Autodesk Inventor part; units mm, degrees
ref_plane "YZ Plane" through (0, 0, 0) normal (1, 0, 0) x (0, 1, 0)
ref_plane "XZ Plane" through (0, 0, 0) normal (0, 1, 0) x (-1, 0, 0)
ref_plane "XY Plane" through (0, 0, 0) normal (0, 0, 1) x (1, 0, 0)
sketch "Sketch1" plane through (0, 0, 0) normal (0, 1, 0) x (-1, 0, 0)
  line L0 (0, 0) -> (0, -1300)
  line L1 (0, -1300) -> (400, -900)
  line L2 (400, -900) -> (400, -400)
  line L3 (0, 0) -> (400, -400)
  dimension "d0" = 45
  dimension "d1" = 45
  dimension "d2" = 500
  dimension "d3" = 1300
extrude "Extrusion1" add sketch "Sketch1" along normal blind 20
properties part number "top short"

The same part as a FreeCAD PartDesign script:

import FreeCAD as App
import Part
import Sketcher
from FreeCAD import Vector


def add_polygon(sketch, points):
    """Adds a closed chain of lines whose ends are joined by coincident constraints."""
    first, n = sketch.GeometryCount, len(points)
    for a, b in zip(points, points[1:] + points[:1]):
        sketch.addGeometry(Part.LineSegment(App.Vector(*a, 0), App.Vector(*b, 0)), False)
    for i in range(n):
        sketch.addConstraint(Sketcher.Constraint("Coincident", first + i, 2, first + (i + 1) % n, 1))

doc = App.newDocument("Part")
body = doc.addObject("PartDesign::Body", "Body")

# Sketch on XZ plane
sketch1 = body.newObject("Sketcher::SketchObject", "Sketch")
sketch1.AttachmentSupport = (doc.getObject("XZ_Plane"), [""])
sketch1.MapMode = "FlatFace"
add_polygon(sketch1, [(-400, -400), (0, 0), (0, -1300), (-400, -900)])  # lines 0-3
sketch1.addConstraint(Sketcher.Constraint("Vertical", 1))
sketch1.addConstraint(Sketcher.Constraint("Vertical", 3))
sketch1.addConstraint(Sketcher.Constraint("Coincident", 0, 2, -1, 1))
sketch1.addConstraint(Sketcher.Constraint("Perpendicular", 0, 2))
sketch1.addConstraint(Sketcher.Constraint("Equal", 0, 2))
sketch1.addConstraint(Sketcher.Constraint("DistanceY", 1, 2, 1, 1, 1300.0))
sketch1.addConstraint(Sketcher.Constraint("DistanceY", 3, 1, 3, 2, 500.0))
pad1 = body.newObject("PartDesign::Pad", "Pad")
pad1.Profile = sketch1
pad1.Length = 20
pad1.Reversed = True

doc.recompute()
